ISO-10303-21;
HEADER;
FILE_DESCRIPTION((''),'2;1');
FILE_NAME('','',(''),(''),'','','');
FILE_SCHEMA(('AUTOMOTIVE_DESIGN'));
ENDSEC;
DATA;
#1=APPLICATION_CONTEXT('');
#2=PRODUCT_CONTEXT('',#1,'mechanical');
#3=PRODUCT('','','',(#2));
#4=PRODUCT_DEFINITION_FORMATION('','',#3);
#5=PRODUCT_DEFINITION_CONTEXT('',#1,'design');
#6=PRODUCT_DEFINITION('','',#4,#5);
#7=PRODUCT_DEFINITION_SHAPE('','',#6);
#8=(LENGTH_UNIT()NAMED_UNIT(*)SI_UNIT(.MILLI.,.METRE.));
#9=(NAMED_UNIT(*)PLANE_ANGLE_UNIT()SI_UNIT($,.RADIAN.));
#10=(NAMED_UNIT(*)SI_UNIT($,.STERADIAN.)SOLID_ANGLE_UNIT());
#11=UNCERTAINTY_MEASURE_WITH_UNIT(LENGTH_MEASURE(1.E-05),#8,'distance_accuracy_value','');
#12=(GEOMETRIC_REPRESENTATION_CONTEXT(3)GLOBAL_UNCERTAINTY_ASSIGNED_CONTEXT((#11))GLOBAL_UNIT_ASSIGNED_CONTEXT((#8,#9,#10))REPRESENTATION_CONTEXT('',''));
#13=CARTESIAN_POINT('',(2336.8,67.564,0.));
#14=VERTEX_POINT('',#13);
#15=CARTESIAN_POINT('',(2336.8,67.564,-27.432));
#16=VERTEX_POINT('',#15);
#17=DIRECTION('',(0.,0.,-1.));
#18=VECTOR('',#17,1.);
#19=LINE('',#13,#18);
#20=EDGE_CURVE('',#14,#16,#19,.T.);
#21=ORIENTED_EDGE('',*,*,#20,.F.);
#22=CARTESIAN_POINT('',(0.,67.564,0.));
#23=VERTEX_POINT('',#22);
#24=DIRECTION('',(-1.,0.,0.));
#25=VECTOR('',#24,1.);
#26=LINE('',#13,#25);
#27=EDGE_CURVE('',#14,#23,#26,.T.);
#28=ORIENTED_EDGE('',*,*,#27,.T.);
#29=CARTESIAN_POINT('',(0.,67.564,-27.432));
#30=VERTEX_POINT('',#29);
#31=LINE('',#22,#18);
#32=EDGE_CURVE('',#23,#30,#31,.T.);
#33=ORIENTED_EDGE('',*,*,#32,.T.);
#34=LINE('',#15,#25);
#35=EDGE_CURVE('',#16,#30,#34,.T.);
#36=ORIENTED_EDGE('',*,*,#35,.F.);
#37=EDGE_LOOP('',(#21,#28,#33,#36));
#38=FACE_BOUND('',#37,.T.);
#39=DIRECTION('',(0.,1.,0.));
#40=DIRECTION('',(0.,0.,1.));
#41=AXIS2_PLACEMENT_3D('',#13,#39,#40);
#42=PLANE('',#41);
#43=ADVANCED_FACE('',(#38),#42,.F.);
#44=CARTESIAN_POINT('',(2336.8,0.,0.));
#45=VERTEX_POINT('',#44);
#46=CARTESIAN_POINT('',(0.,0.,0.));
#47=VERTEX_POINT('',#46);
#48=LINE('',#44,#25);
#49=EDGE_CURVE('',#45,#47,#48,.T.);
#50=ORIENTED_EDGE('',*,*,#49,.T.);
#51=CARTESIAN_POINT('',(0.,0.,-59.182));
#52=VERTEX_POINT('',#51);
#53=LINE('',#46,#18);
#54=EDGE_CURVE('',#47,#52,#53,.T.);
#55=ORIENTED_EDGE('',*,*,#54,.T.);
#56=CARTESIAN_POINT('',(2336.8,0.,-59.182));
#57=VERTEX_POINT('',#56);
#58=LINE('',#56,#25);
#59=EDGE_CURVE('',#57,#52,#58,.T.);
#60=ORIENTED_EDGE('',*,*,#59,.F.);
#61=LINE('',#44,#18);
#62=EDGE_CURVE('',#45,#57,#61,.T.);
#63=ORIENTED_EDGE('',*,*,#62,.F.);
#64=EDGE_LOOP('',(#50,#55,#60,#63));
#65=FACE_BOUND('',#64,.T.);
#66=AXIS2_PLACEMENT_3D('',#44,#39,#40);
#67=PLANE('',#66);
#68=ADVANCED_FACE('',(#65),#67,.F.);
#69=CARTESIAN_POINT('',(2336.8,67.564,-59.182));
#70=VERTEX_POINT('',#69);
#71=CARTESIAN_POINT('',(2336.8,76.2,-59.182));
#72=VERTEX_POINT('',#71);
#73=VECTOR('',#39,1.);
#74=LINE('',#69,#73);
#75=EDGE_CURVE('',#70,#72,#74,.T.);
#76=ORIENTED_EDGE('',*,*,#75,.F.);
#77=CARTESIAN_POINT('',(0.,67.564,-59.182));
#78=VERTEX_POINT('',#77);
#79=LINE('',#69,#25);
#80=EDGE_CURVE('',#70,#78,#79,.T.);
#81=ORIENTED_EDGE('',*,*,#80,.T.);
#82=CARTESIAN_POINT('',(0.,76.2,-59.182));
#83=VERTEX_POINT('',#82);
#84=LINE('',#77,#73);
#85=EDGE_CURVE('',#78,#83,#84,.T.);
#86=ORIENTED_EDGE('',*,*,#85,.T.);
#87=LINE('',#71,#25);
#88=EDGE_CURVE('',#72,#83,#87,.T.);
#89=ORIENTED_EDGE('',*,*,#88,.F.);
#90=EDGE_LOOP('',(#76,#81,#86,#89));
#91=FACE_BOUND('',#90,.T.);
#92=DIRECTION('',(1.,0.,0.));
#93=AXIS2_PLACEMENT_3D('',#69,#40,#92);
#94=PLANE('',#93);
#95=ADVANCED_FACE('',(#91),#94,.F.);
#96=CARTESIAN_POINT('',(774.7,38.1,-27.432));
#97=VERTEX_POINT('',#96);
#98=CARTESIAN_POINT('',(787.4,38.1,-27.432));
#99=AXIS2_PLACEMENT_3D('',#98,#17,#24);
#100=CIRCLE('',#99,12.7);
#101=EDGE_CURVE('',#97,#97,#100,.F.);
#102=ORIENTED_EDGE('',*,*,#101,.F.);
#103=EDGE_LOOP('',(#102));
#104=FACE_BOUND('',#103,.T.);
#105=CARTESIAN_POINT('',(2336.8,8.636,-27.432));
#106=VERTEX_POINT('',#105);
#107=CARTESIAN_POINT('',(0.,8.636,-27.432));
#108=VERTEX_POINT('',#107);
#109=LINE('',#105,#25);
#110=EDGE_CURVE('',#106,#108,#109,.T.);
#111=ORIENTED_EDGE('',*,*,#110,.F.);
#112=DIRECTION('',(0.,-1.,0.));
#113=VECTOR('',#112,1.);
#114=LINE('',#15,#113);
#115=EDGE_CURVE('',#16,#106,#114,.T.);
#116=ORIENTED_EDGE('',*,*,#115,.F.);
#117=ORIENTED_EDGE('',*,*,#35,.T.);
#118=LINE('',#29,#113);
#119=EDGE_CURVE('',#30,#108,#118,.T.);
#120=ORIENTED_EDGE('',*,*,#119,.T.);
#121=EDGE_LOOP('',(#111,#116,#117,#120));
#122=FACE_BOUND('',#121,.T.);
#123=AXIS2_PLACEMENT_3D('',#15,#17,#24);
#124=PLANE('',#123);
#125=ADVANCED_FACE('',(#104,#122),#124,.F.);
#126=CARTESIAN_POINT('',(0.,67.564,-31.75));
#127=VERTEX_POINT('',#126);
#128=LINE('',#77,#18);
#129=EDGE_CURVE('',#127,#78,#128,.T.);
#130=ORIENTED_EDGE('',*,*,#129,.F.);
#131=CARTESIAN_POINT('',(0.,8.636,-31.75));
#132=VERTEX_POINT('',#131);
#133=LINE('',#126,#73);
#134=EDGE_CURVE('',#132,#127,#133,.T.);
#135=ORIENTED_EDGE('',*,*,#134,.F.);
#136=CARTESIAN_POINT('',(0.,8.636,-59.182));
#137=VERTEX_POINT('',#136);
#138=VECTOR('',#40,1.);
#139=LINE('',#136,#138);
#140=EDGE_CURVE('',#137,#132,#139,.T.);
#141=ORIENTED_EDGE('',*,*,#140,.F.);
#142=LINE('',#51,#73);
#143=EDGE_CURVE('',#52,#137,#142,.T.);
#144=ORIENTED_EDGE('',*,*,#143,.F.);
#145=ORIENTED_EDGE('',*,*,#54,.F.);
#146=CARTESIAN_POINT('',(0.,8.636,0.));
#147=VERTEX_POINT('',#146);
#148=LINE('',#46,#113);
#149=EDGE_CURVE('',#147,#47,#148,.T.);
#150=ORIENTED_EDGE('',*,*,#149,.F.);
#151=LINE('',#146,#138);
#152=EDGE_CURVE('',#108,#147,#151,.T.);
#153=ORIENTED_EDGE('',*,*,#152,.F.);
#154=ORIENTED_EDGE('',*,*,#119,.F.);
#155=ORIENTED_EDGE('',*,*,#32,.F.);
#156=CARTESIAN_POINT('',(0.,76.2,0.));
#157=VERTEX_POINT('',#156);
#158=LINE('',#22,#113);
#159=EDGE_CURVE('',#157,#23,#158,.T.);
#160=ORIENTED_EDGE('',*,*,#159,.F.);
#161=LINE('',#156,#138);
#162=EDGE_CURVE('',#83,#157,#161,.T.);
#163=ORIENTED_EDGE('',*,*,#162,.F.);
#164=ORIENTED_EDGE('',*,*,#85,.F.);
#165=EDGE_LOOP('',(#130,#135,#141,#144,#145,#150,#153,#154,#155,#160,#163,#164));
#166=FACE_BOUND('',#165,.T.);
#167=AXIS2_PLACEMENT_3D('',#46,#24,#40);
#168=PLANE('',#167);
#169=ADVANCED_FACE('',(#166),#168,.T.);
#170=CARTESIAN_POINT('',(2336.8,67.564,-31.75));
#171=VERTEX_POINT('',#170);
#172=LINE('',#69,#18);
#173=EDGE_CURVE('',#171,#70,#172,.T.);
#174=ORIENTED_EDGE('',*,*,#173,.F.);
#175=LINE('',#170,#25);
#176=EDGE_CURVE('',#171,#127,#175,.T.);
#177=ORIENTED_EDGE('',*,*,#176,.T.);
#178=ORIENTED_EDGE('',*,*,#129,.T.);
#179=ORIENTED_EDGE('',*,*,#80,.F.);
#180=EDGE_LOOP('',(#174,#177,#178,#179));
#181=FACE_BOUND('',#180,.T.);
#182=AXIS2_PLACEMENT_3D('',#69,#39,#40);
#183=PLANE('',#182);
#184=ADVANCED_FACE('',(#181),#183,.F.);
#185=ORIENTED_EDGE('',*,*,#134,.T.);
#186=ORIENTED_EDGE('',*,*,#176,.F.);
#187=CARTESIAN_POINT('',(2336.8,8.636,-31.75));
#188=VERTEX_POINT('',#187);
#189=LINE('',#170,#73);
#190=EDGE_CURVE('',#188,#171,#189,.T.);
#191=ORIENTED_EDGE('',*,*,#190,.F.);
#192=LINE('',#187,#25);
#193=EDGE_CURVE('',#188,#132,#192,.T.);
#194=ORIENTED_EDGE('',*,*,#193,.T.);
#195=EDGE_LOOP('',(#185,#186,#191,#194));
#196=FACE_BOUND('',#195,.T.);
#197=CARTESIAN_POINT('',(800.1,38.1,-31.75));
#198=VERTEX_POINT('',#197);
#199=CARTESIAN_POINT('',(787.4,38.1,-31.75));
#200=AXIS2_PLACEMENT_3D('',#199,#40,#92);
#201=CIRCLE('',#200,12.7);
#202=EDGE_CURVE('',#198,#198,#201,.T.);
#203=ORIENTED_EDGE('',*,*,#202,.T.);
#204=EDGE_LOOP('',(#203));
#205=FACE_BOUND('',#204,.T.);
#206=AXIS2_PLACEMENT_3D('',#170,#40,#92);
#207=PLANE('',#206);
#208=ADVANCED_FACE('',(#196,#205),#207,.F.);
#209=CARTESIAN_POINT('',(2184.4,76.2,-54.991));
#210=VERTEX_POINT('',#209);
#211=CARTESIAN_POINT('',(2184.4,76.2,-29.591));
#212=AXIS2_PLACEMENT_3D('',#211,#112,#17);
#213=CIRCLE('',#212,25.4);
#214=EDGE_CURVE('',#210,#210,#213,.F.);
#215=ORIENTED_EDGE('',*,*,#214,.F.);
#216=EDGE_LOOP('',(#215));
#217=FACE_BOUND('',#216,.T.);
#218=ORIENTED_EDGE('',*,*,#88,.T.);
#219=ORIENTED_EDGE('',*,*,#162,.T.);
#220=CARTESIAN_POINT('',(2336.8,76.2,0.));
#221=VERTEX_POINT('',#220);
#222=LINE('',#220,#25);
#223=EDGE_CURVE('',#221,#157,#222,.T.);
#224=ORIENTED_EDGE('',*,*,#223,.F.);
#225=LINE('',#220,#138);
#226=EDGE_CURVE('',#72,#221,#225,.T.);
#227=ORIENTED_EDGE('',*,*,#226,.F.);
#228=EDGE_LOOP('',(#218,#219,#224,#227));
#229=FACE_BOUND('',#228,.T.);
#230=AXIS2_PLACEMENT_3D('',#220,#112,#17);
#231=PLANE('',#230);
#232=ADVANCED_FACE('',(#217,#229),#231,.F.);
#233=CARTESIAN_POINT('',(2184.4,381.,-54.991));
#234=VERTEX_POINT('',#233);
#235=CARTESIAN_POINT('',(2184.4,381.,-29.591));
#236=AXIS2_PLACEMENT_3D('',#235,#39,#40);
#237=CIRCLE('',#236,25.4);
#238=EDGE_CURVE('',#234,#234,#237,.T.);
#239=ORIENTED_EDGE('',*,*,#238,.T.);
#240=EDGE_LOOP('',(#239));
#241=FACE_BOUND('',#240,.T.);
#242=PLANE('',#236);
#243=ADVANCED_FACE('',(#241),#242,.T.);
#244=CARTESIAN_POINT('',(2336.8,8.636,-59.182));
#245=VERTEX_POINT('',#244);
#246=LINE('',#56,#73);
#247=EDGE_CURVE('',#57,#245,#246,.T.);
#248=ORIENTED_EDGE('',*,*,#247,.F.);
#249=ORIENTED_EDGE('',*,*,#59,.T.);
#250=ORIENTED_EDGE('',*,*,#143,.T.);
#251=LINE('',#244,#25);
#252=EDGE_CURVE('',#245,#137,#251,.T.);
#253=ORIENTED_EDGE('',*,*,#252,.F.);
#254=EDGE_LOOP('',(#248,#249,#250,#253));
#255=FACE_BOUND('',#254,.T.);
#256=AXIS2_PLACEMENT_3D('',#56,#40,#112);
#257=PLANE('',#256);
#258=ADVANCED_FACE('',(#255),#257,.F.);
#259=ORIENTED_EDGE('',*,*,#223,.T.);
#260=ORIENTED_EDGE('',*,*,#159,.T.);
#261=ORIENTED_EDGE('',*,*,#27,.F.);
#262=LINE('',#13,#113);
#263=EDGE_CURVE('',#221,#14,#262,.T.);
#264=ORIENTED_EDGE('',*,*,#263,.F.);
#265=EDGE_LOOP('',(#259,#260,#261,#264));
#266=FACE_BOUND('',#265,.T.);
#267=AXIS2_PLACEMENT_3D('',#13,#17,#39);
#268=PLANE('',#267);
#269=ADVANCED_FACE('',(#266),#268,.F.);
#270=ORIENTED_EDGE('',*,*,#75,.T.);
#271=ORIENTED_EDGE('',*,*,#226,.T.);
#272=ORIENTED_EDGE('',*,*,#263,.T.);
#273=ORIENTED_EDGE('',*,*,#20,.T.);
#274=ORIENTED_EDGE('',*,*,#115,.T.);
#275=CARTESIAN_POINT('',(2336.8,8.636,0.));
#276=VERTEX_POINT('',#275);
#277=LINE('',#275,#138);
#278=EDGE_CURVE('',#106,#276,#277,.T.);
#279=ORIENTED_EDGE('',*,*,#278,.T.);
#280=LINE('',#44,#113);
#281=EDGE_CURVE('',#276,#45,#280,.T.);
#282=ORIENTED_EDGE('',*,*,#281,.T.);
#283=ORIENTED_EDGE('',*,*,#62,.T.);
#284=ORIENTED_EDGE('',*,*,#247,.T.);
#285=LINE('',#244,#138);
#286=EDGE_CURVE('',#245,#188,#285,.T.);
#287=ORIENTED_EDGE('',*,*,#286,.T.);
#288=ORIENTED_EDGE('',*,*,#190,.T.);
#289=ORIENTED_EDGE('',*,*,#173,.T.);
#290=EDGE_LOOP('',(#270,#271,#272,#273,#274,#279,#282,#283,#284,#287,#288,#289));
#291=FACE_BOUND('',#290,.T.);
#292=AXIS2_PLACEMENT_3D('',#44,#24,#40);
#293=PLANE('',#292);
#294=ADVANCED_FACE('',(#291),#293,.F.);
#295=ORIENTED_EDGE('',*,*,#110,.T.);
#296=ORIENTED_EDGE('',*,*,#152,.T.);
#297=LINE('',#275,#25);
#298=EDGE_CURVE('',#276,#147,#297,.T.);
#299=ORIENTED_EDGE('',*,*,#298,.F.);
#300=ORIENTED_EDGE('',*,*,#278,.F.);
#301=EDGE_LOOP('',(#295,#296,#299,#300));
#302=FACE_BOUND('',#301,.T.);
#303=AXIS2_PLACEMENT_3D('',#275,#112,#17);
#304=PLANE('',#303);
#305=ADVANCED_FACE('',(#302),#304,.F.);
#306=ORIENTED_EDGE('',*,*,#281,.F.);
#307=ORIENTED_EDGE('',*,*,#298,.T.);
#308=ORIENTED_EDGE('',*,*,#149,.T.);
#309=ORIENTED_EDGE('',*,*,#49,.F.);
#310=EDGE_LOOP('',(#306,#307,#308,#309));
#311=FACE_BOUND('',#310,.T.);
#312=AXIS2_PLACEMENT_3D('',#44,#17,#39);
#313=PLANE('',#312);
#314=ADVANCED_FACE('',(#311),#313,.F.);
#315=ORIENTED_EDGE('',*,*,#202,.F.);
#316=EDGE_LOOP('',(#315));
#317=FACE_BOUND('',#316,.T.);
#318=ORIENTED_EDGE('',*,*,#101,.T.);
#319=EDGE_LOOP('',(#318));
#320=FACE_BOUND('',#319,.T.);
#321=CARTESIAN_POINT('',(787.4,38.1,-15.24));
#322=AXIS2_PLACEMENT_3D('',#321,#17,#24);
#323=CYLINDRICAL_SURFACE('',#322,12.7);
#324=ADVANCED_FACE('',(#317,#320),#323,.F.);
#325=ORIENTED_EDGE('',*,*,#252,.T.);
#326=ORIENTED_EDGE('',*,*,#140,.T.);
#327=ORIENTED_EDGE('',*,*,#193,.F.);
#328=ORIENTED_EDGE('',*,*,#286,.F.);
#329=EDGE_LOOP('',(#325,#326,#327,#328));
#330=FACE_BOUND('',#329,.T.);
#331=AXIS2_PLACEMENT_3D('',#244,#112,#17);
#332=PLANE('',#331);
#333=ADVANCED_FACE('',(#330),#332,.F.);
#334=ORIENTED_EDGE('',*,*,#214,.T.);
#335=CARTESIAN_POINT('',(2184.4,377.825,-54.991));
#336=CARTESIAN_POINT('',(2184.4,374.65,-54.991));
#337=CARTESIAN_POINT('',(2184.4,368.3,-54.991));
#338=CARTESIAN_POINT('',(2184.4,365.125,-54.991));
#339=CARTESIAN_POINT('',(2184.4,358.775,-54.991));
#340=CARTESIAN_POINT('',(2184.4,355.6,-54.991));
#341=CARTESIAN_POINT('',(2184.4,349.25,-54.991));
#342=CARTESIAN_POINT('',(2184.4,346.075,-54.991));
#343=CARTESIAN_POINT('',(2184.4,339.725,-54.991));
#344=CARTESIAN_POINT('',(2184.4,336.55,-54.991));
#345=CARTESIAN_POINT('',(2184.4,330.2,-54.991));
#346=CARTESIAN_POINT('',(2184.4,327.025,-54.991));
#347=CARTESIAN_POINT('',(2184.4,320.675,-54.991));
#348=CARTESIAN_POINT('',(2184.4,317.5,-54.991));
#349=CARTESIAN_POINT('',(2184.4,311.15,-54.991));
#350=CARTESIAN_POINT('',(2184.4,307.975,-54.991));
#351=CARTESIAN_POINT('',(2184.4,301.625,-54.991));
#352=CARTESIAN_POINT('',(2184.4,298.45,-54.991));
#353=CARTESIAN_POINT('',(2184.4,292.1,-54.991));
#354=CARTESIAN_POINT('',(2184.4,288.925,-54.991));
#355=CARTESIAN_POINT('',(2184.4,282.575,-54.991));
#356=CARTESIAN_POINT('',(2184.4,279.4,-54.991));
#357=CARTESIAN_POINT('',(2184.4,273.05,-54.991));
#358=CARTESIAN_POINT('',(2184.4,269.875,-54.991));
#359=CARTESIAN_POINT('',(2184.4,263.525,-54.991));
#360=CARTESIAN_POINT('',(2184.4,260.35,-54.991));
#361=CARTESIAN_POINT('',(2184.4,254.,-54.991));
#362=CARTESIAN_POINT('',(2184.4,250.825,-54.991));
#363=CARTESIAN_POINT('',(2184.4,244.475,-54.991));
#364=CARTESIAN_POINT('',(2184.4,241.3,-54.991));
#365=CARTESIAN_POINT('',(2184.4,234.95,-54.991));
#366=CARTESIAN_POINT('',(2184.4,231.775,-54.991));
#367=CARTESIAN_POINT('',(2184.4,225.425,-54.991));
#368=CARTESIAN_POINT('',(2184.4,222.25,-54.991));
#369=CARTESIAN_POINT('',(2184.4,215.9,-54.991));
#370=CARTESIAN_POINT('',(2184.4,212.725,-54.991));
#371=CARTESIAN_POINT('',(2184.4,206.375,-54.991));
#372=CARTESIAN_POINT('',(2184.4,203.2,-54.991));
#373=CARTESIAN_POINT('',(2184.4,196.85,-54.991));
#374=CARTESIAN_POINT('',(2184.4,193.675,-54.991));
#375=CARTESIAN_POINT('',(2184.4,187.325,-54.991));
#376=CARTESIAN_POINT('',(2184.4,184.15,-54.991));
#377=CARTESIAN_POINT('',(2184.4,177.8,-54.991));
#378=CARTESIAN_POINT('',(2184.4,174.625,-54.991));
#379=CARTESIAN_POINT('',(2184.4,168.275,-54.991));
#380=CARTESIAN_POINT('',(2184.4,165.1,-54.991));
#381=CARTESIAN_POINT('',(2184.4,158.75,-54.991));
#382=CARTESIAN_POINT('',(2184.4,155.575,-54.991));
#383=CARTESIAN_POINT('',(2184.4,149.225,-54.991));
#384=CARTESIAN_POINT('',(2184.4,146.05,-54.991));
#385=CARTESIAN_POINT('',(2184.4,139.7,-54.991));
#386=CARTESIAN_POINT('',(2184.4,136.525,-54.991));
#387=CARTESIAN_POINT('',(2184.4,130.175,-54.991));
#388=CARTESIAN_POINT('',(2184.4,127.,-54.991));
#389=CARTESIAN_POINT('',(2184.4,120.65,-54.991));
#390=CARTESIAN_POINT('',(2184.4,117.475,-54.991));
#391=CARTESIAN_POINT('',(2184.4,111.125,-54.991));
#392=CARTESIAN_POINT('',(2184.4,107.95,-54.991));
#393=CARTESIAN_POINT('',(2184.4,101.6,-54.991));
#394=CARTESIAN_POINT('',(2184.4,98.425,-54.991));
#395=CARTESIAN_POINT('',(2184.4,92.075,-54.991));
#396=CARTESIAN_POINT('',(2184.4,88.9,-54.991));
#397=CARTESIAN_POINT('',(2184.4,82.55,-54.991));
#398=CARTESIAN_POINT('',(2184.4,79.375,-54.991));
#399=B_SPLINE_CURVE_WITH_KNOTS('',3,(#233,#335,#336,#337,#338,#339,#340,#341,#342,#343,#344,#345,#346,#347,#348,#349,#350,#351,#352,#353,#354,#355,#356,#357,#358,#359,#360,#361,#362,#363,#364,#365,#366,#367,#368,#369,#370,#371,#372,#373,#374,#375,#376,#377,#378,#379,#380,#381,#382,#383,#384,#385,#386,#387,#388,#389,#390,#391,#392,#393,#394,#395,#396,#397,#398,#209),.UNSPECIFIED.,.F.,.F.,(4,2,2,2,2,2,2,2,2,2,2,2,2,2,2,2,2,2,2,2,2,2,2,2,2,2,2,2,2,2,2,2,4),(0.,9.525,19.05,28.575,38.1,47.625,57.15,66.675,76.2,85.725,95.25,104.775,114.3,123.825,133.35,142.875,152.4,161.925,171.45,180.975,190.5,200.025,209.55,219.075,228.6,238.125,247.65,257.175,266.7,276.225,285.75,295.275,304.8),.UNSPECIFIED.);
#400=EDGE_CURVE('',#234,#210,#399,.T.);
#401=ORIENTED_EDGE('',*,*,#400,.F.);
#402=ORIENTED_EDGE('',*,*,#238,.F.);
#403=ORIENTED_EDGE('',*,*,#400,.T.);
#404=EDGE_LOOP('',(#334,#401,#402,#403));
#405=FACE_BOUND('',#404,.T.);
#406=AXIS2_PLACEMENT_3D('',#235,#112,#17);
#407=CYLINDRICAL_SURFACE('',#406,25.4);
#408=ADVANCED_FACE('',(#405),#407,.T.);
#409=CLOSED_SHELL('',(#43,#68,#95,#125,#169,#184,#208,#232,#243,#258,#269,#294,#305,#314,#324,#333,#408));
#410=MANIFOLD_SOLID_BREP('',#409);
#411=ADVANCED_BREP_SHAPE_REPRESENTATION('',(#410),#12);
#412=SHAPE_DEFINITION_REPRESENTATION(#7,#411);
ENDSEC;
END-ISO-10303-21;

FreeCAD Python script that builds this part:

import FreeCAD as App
import Part
import Sketcher

V = App.Vector
Q = App.Units.Quantity

doc = App.newDocument("Part")
body = doc.addObject("PartDesign::Body", "Body")

sketch1 = body.newObject("Sketcher::SketchObject", "Sketch")
sketch1.AttachmentSupport = (doc.getObject("YZ_Plane"), [""])
sketch1.MapMode = "FlatFace"
sketch1.addGeometry([
    Part.LineSegment(V(67.564, -59.182, 0), V(76.2, -59.182, 0)),
    Part.LineSegment(V(76.2, -59.182, 0), V(76.2, 0, 0)),
    Part.LineSegment(V(76.2, 0, 0), V(67.564, 0, 0)),
    Part.LineSegment(V(67.564, 0, 0), V(67.564, -27.432, 0)),
    Part.LineSegment(V(67.564, -27.432, 0), V(8.636, -27.432, 0)),
    Part.LineSegment(V(8.636, -27.432, 0), V(8.636, 0, 0)),
    Part.LineSegment(V(8.636, 0, 0), V(0, 0, 0)),
    Part.LineSegment(V(0, 0, 0), V(0, -59.182, 0)),
    Part.LineSegment(V(0, -59.182, 0), V(8.636, -59.182, 0)),
    Part.LineSegment(V(8.636, -59.182, 0), V(8.636, -31.75, 0)),
    Part.LineSegment(V(8.636, -31.75, 0), V(67.564, -31.75, 0)),
    Part.LineSegment(V(67.564, -31.75, 0), V(67.564, -59.182, 0)),
], False)
sketch1.addConstraint([
    Sketcher.Constraint("Coincident", 0, 2, 1, 1),
    Sketcher.Constraint("Coincident", 1, 2, 2, 1),
    Sketcher.Constraint("Coincident", 2, 2, 3, 1),
    Sketcher.Constraint("Coincident", 3, 2, 4, 1),
    Sketcher.Constraint("Coincident", 4, 2, 5, 1),
    Sketcher.Constraint("Coincident", 5, 2, 6, 1),
    Sketcher.Constraint("Coincident", 6, 2, 7, 1),
    Sketcher.Constraint("Coincident", 7, 2, 8, 1),
    Sketcher.Constraint("Coincident", 8, 2, 9, 1),
    Sketcher.Constraint("Coincident", 9, 2, 10, 1),
    Sketcher.Constraint("Coincident", 10, 2, 11, 1),
    Sketcher.Constraint("Coincident", 11, 2, 0, 1),
    Sketcher.Constraint("Horizontal", 0),
    Sketcher.Constraint("Vertical", 1),
    Sketcher.Constraint("Horizontal", 2),
    Sketcher.Constraint("Vertical", 3),
    Sketcher.Constraint("Horizontal", 4),
    Sketcher.Constraint("Vertical", 5),
    Sketcher.Constraint("Horizontal", 6),
    Sketcher.Constraint("Vertical", 7),
    Sketcher.Constraint("Horizontal", 8),
    Sketcher.Constraint("Vertical", 9),
    Sketcher.Constraint("Horizontal", 10),
    Sketcher.Constraint("Vertical", 11),
    Sketcher.Constraint("Coincident", 6, 2, -1, 1),
    Sketcher.Constraint("PointOnObject", 1, 2, -1),
    Sketcher.Constraint("Horizontal", 0, 2, 7, 2),
    Sketcher.Constraint("Vertical", 5, 2, 8, 2),
    Sketcher.Constraint("Vertical", 3, 2, 10, 2),
    Sketcher.Constraint("Equal", 2, 6),
    Sketcher.Constraint("Equal", 5, 9),
    Sketcher.Constraint("DistanceX", -1, 1, 0, 2, Q("3 in")),
    Sketcher.Constraint("DistanceX", 0, 1, 0, 2, Q("0.34 in")),
    Sketcher.Constraint("DistanceY", 1, 1, 1, 2, Q("2.33 in")),
    Sketcher.Constraint("DistanceY", 3, 2, 3, 1, Q("1.08 in")),
])
pad1 = body.newObject("PartDesign::Pad", "Pad")
pad1.Profile = sketch1
pad1.Length = Q("92 in")

sketch2 = body.newObject("Sketcher::SketchObject", "Sketch001")
sketch2.AttachmentSupport = (doc.getObject("XZ_Plane"), [""])
sketch2.MapMode = "FlatFace"
sketch2.AttachmentOffset = App.Placement(V(0, 0, -3 * 25.4), App.Rotation())
sketch2.addGeometry(Part.Circle(V(2184.4, -29.591, 0), V(0, 0, 1), 25.4), False)
sketch2.addConstraint([
    Sketcher.Constraint("Diameter", 0, Q("2 in")),
    Sketcher.Constraint("DistanceX", -1, 1, 0, 3, Q("86 in")),
    Sketcher.Constraint("DistanceY", 0, 3, -1, 1, Q("1.165 in")),
])
pad2 = body.newObject("PartDesign::Pad", "Pad001")
pad2.Profile = sketch2
pad2.Length = Q("12 in")
pad2.Reversed = True

sketch3 = body.newObject("Sketcher::SketchObject", "Sketch002")
sketch3.AttachmentSupport = (doc.getObject("XY_Plane"), [""])
sketch3.MapMode = "FlatFace"
sketch3.AttachmentOffset = App.Placement(V(0, 0, -1.25 * 25.4), App.Rotation())
sketch3.addGeometry(Part.Circle(V(787.4, 38.1, 0), V(0, 0, 1), 12.7), False)
sketch3.addConstraint([
    Sketcher.Constraint("Diameter", 0, Q("1 in")),
    Sketcher.Constraint("DistanceX", -1, 1, 0, 3, Q("31 in")),
    Sketcher.Constraint("DistanceY", -1, 1, 0, 3, Q("1.5 in")),
])
pocket1 = body.newObject("PartDesign::Pocket", "Pocket")
pocket1.Profile = sketch3
pocket1.Length = Q("0.65 in")
pocket1.Reversed = True

doc.recompute()
